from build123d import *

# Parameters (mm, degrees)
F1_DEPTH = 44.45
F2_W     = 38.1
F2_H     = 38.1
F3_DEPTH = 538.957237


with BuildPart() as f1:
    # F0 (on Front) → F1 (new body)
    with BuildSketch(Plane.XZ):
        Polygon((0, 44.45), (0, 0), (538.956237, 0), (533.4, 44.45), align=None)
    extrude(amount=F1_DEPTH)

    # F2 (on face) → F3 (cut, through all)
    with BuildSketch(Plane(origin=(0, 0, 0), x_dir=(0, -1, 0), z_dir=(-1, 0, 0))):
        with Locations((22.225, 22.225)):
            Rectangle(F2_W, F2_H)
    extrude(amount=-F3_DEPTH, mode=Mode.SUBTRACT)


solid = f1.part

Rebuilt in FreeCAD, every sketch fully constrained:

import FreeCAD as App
import Part
import Sketcher

V = App.Vector
Q = App.Units.Quantity


def add_polygon(sketch, points):
    """Adds a closed chain of lines whose ends are joined by coincident constraints."""
    first, n = sketch.GeometryCount, len(points)
    for a, b in zip(points, points[1:] + points[:1]):
        sketch.addGeometry(Part.LineSegment(App.Vector(*a, 0), App.Vector(*b, 0)), False)
    for i in range(n):
        sketch.addConstraint(Sketcher.Constraint("Coincident", first + i, 2, first + (i + 1) % n, 1))

doc = App.newDocument("Part")
params = doc.addObject("Spreadsheet::Sheet", "Params")
for row, (alias, value) in enumerate([
    ("sketch1_width", "21 in"),
    ("sketch1_height", "1.75 in"),
    ("pad1_length", "1.75 in"),
    ("sketch2_width", "1.5 in"),
], start=1):
    params.set(f"A{row}", alias)
    params.set(f"B{row}", "=" + value)
    params.setAlias(f"B{row}", alias)

body = doc.addObject("PartDesign::Body", "Body")

# Sketch on XZ plane
sketch1 = doc.addObject("Sketcher::SketchObject", "Sketch")
body.addObject(sketch1)
sketch1.AttachmentSupport = (doc.XZ_Plane, [""])
sketch1.MapMode = "FlatFace"
add_polygon(sketch1, [(0, 44), (0, 0), (539, 0), (533, 44)])  # lines 0-3
sketch1.addConstraint([
    Sketcher.Constraint("Vertical", 0),
    Sketcher.Constraint("Horizontal", 1),
    Sketcher.Constraint("Horizontal", 3),
    Sketcher.Constraint("Coincident", 0, 2, -1, 1),
    Sketcher.Constraint("DistanceX", 3, 2, 3, 1, Q("21 in")),
    Sketcher.Constraint("DistanceY", 0, 2, 0, 1, Q("1.75 in")),
    Sketcher.Constraint("Distance", 2, 44.795918),
])
sketch1.setExpression("Constraints[8]", "Params.sketch1_width")
sketch1.setExpression("Constraints[9]", "Params.sketch1_height")
pad1 = doc.addObject("PartDesign::Pad", "Pad")
body.addObject(pad1)
pad1.Profile = sketch1
pad1.setExpression("Length", "Params.pad1_length")

# Sketch on YZ plane
sketch2 = doc.addObject("Sketcher::SketchObject", "Sketch001")
body.addObject(sketch2)
sketch2.AttachmentSupport = (doc.YZ_Plane, [""])
sketch2.MapMode = "FlatFace"
add_polygon(sketch2, [(-3, 41), (-3, 3), (-41, 3), (-41, 41)])  # lines 0-3
sketch2.addConstraint([
    Sketcher.Constraint("Vertical", 0),
    Sketcher.Constraint("Horizontal", 1),
    Sketcher.Constraint("Vertical", 2),
    Sketcher.Constraint("Horizontal", 3),
    Sketcher.Constraint("Equal", 3, 0),
    Sketcher.Constraint("DistanceX", 1, 2, 1, 1, Q("1.5 in")),
    Sketcher.Constraint("DistanceX", 0, 2, -1, 1, Q("0.125 in")),
    Sketcher.Constraint("DistanceY", -1, 1, 0, 2, Q("0.125 in")),
])
sketch2.setExpression("Constraints[9]", "Params.sketch2_width")
pocket1 = doc.addObject("PartDesign::Pocket", "Pocket")
body.addObject(pocket1)
pocket1.Profile = sketch2
pocket1.Type = "ThroughAll"
pocket1.Reversed = True

doc.recompute()
